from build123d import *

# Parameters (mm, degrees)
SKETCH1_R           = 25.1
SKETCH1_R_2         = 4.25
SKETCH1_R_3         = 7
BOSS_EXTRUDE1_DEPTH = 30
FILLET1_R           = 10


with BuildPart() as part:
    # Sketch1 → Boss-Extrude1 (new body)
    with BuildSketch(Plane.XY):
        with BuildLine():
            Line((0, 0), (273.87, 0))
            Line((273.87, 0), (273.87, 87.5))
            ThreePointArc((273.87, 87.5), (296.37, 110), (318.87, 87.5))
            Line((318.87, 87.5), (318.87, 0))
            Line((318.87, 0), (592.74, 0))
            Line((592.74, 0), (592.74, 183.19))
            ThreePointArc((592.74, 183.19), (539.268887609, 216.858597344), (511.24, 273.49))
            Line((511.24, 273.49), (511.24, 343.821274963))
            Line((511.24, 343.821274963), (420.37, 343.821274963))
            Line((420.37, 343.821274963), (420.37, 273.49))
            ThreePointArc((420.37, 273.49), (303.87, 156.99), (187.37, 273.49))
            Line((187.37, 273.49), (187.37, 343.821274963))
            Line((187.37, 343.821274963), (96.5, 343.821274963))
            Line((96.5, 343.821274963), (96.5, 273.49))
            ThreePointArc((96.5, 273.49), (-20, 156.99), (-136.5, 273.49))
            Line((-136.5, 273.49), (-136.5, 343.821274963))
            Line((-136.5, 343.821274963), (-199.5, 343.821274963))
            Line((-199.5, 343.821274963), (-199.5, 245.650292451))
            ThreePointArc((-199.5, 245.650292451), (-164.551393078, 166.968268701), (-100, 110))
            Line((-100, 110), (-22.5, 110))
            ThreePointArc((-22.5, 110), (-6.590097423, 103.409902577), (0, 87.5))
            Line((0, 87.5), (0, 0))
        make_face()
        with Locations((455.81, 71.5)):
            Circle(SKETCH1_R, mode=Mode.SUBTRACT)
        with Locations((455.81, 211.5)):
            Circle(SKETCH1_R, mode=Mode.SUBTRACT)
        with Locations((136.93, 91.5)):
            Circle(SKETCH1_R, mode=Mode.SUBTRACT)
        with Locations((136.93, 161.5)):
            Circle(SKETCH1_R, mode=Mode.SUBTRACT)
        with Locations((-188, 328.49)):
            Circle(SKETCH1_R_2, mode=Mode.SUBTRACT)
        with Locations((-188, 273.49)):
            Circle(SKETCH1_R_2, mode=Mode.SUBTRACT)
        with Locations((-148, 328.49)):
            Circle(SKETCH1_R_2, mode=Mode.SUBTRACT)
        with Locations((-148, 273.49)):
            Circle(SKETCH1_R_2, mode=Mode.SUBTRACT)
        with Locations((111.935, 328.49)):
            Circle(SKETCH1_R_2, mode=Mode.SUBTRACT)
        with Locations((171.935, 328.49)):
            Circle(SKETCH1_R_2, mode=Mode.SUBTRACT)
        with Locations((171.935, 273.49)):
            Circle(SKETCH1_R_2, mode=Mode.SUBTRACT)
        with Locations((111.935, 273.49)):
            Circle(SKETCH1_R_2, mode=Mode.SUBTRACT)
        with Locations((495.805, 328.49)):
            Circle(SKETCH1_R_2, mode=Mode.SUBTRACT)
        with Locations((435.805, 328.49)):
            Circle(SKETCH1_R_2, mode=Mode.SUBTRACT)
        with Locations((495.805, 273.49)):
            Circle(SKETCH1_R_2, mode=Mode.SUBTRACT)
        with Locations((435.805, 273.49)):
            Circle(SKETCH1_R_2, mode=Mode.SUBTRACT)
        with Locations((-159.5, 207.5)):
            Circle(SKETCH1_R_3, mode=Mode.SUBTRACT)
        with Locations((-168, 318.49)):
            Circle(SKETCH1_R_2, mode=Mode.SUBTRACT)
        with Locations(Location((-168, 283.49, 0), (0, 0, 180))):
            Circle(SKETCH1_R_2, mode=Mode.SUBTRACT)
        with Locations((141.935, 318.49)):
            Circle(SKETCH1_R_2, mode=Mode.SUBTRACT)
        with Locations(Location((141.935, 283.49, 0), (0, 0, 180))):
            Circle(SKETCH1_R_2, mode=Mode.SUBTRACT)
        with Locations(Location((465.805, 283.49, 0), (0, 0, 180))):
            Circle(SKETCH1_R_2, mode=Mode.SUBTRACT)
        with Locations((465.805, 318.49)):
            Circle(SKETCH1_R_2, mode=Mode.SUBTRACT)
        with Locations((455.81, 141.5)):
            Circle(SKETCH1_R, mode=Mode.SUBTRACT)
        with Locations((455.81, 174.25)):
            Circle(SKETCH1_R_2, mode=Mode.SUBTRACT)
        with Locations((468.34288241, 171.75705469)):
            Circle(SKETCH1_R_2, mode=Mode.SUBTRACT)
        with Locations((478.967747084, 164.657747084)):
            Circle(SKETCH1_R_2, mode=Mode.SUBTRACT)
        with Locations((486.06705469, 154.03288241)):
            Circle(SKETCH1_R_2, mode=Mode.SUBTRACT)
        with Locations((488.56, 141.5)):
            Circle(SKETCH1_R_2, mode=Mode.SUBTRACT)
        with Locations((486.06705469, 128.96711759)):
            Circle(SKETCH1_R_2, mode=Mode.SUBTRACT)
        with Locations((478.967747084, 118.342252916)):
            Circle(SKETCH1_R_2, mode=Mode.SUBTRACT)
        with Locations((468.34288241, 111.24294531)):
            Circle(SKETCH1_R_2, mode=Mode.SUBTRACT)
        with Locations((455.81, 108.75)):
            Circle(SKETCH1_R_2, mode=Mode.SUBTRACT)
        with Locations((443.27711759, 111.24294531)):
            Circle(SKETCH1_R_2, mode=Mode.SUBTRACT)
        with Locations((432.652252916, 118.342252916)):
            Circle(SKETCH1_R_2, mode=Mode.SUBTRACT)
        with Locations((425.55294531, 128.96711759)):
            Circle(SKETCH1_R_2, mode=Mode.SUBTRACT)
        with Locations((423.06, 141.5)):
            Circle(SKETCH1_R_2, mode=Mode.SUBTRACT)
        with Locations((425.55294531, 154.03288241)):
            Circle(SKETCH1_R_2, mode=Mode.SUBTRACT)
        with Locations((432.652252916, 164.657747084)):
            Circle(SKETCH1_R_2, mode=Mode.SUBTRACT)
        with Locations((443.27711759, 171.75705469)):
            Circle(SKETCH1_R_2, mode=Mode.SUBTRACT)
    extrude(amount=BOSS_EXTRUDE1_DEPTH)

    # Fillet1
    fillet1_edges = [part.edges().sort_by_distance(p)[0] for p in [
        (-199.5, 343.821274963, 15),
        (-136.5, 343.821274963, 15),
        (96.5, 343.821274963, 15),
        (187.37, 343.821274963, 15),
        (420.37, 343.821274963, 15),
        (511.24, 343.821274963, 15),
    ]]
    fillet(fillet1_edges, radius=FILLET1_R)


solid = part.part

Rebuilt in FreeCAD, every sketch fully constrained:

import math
import FreeCAD as App
import Part
import Sketcher

V = App.Vector
Q = App.Units.Quantity


def edges_at(feature, points):
    """Names of the edges that pass closest to the given points."""
    edges = feature.Shape.Edges
    near = lambda p: min(range(len(edges)), key=lambda i: edges[i].distToShape(Part.Vertex(*p))[0])
    return sorted({f"Edge{near(p) + 1}" for p in points})

doc = App.newDocument("Part")
params = doc.addObject("Spreadsheet::Sheet", "Params")
for row, (alias, value) in enumerate([
    ("sketch1_diameter", "14 mm"),
    ("sketch1_diameter2", "50.2 mm"),
    ("sketch1_diameter3", "8.5 mm"),
    ("sketch1_radius", "22.5 mm"),
    ("sketch1_radius2", "116.5 mm"),
    ("pad1_length", "30 mm"),
    ("fillet_radius", "10 mm"),
], start=1):
    params.set(f"A{row}", alias)
    params.set(f"B{row}", "=" + value)
    params.setAlias(f"B{row}", alias)

body = doc.addObject("PartDesign::Body", "Body")

sketch1 = doc.addObject("Sketcher::SketchObject", "Sketch")
body.addObject(sketch1)
sketch1.AttachmentSupport = (doc.XY_Plane, [""])
sketch1.MapMode = "FlatFace"
sketch1.addGeometry([
    Part.LineSegment(V(0, 0, 0), V(273.9, 0, 0)),
    Part.LineSegment(V(273.9, 0, 0), V(273.9, 87.5, 0)),
    Part.ArcOfCircle(Part.Circle(V(296.4, 87.5, 0), V(0, 0, 1), 22.5), math.radians(0), math.radians(180)),
    Part.LineSegment(V(318.9, 87.5, 0), V(318.9, 0, 0)),
    Part.LineSegment(V(318.9, 0, 0), V(592.7, 0, 0)),
    Part.LineSegment(V(592.7, 0, 0), V(592.7, 183.2, 0)),
    Part.ArcOfCircle(Part.Circle(V(625.8, 294.9, 0), V(0, 0, 1), 116.5), math.radians(-169), math.radians(-106)),
    Part.LineSegment(V(511.2, 273.5, 0), V(511.2, 343.8, 0)),
    Part.LineSegment(V(511.2, 343.8, 0), V(420.4, 343.8, 0)),
    Part.LineSegment(V(420.4, 343.8, 0), V(420.4, 273.5, 0)),
    Part.ArcOfCircle(Part.Circle(V(303.9, 273.5, 0), V(0, 0, 1), 116.5), math.radians(180), math.radians(360)),
    Part.LineSegment(V(187.4, 273.5, 0), V(187.4, 343.8, 0)),
    Part.LineSegment(V(187.4, 343.8, 0), V(96.5, 343.8, 0)),
    Part.LineSegment(V(96.5, 343.8, 0), V(96.5, 273.5, 0)),
    Part.ArcOfCircle(Part.Circle(V(-20, 273.5, 0), V(0, 0, 1), 116.5), math.radians(180), math.radians(360)),
    Part.LineSegment(V(-136.5, 273.5, 0), V(-136.5, 343.8, 0)),
    Part.LineSegment(V(-136.5, 343.8, 0), V(-199.5, 343.8, 0)),
    Part.LineSegment(V(-199.5, 343.8, 0), V(-199.5, 245.7, 0)),
    Part.ArcOfCircle(Part.Circle(V(-1.8, 286.4, 0), V(0, 0, 1), 201.9), math.radians(-168), math.radians(-119)),
    Part.LineSegment(V(-100, 110, 0), V(-22.5, 110, 0)),
    Part.ArcOfCircle(Part.Circle(V(-22.5, 87.5, 0), V(0, 0, 1), 22.5), math.radians(0), math.radians(90)),
    Part.LineSegment(V(0, 87.5, 0), V(0, 0, 0)),
    Part.Circle(V(136.9, 91.5, 0), V(0, 0, 1), 25.1),
    Part.Circle(V(136.9, 161.5, 0), V(0, 0, 1), 25.1),
    Part.Circle(V(455.8, 71.5, 0), V(0, 0, 1), 25.1),
    Part.Circle(V(455.8, 108.8, 0), V(0, 0, 1), 4.2),
    Part.Circle(V(443.3, 111.2, 0), V(0, 0, 1), 4.2),
    Part.Circle(V(468.3, 111.2, 0), V(0, 0, 1), 4.2),
    Part.Circle(V(432.7, 118.3, 0), V(0, 0, 1), 4.2),
    Part.Circle(V(425.6, 129, 0), V(0, 0, 1), 4.2),
    Part.Circle(V(479, 118.3, 0), V(0, 0, 1), 4.2),
    Part.Circle(V(486.1, 129, 0), V(0, 0, 1), 4.2),
    Part.Circle(V(423.1, 141.5, 0), V(0, 0, 1), 4.2),
    Part.Circle(V(455.8, 141.5, 0), V(0, 0, 1), 25.1),
    Part.Circle(V(488.6, 141.5, 0), V(0, 0, 1), 4.2),
    Part.Circle(V(425.6, 154, 0), V(0, 0, 1), 4.2),
    Part.Circle(V(432.7, 164.7, 0), V(0, 0, 1), 4.2),
    Part.Circle(V(486.1, 154, 0), V(0, 0, 1), 4.2),
    Part.Circle(V(479, 164.7, 0), V(0, 0, 1), 4.2),
    Part.Circle(V(443.3, 171.8, 0), V(0, 0, 1), 4.2),
    Part.Circle(V(455.8, 174.2, 0), V(0, 0, 1), 4.2),
    Part.Circle(V(468.3, 171.8, 0), V(0, 0, 1), 4.2),
    Part.Circle(V(-159.5, 207.5, 0), V(0, 0, 1), 7),
    Part.Circle(V(-188, 273.5, 0), V(0, 0, 1), 4.2),
    Part.Circle(V(-148, 273.5, 0), V(0, 0, 1), 4.2),
    Part.Circle(V(-168, 283.5, 0), V(0, 0, 1), 4.2),
    Part.Circle(V(-168, 318.5, 0), V(0, 0, 1), 4.2),
    Part.Circle(V(-188, 328.5, 0), V(0, 0, 1), 4.2),
    Part.Circle(V(-148, 328.5, 0), V(0, 0, 1), 4.2),
    Part.Circle(V(111.9, 273.5, 0), V(0, 0, 1), 4.2),
    Part.Circle(V(141.9, 283.5, 0), V(0, 0, 1), 4.2),
    Part.Circle(V(141.9, 318.5, 0), V(0, 0, 1), 4.2),
    Part.Circle(V(111.9, 328.5, 0), V(0, 0, 1), 4.2),
    Part.Circle(V(455.8, 211.5, 0), V(0, 0, 1), 25.1),
    Part.Circle(V(171.9, 273.5, 0), V(0, 0, 1), 4.2),
    Part.Circle(V(171.9, 328.5, 0), V(0, 0, 1), 4.2),
    Part.Circle(V(435.8, 273.5, 0), V(0, 0, 1), 4.2),
    Part.Circle(V(495.8, 273.5, 0), V(0, 0, 1), 4.2),
    Part.Circle(V(465.8, 283.5, 0), V(0, 0, 1), 4.2),
    Part.Circle(V(435.8, 328.5, 0), V(0, 0, 1), 4.2),
    Part.Circle(V(465.8, 318.5, 0), V(0, 0, 1), 4.2),
    Part.Circle(V(495.8, 328.5, 0), V(0, 0, 1), 4.2),
], False)
sketch1.addConstraint([
    Sketcher.Constraint("Coincident", 0, 2, 1, 1),
    Sketcher.Constraint("Tangent", 1, 2, 2, 2),
    Sketcher.Constraint("Tangent", 2, 1, 3, 1),
    Sketcher.Constraint("Coincident", 3, 2, 4, 1),
    Sketcher.Constraint("Coincident", 4, 2, 5, 1),
    Sketcher.Constraint("Coincident", 5, 2, 6, 2),
    Sketcher.Constraint("Coincident", 6, 1, 7, 1),
    Sketcher.Constraint("Coincident", 7, 2, 8, 1),
    Sketcher.Constraint("Coincident", 8, 2, 9, 1),
    Sketcher.Constraint("Tangent", 9, 2, 10, 2),
    Sketcher.Constraint("Tangent", 10, 1, 11, 1),
    Sketcher.Constraint("Coincident", 11, 2, 12, 1),
    Sketcher.Constraint("Coincident", 12, 2, 13, 1),
    Sketcher.Constraint("Tangent", 13, 2, 14, 2),
    Sketcher.Constraint("Tangent", 14, 1, 15, 1),
    Sketcher.Constraint("Coincident", 15, 2, 16, 1),
    Sketcher.Constraint("Coincident", 16, 2, 17, 1),
    Sketcher.Constraint("Coincident", 17, 2, 18, 1),
    Sketcher.Constraint("Coincident", 18, 2, 19, 1),
    Sketcher.Constraint("Tangent", 19, 2, 20, 2),
    Sketcher.Constraint("Tangent", 20, 1, 21, 1),
    Sketcher.Constraint("Coincident", 21, 2, 0, 1),
    Sketcher.Constraint("Horizontal", 0),
    Sketcher.Constraint("Vertical", 1),
    Sketcher.Constraint("Vertical", 3),
    Sketcher.Constraint("Horizontal", 4),
    Sketcher.Constraint("Vertical", 5),
    Sketcher.Constraint("Vertical", 7),
    Sketcher.Constraint("Horizontal", 8),
    Sketcher.Constraint("Vertical", 9),
    Sketcher.Constraint("Vertical", 11),
    Sketcher.Constraint("Horizontal", 12),
    Sketcher.Constraint("Vertical", 13),
    Sketcher.Constraint("Vertical", 15),
    Sketcher.Constraint("Horizontal", 16),
    Sketcher.Constraint("Vertical", 17),
    Sketcher.Constraint("Horizontal", 19),
    Sketcher.Constraint("Vertical", 21),
    Sketcher.Constraint("Coincident", 21, 2, -1, 1),
    Sketcher.Constraint("Equal", 6, 10),
    Sketcher.Constraint("Equal", 10, 14),
    Sketcher.Constraint("Equal", 2, 20),
    Sketcher.Constraint("Equal", 22, 23),
    Sketcher.Constraint("Equal", 23, 24),
    Sketcher.Constraint("Equal", 25, 26),
    Sketcher.Constraint("Equal", 26, 27),
    Sketcher.Constraint("Equal", 27, 28),
    Sketcher.Constraint("Equal", 28, 29),
    Sketcher.Constraint("Equal", 29, 30),
    Sketcher.Constraint("Equal", 30, 31),
    Sketcher.Constraint("Equal", 31, 32),
    Sketcher.Constraint("Equal", 24, 33),
    Sketcher.Constraint("Equal", 32, 34),
    Sketcher.Constraint("Equal", 34, 35),
    Sketcher.Constraint("Equal", 35, 36),
    Sketcher.Constraint("Equal", 36, 37),
    Sketcher.Constraint("Equal", 37, 38),
    Sketcher.Constraint("Equal", 38, 39),
    Sketcher.Constraint("Equal", 39, 40),
    Sketcher.Constraint("Equal", 40, 41),
    Sketcher.Constraint("Equal", 41, 43),
    Sketcher.Constraint("Equal", 43, 44),
    Sketcher.Constraint("Equal", 44, 45),
    Sketcher.Constraint("Equal", 45, 46),
    Sketcher.Constraint("Equal", 46, 47),
    Sketcher.Constraint("Equal", 47, 48),
    Sketcher.Constraint("Equal", 48, 49),
    Sketcher.Constraint("Equal", 49, 50),
    Sketcher.Constraint("Equal", 50, 51),
    Sketcher.Constraint("Equal", 51, 52),
    Sketcher.Constraint("Equal", 33, 53),
    Sketcher.Constraint("Equal", 52, 54),
    Sketcher.Constraint("Equal", 54, 55),
    Sketcher.Constraint("Equal", 55, 56),
    Sketcher.Constraint("Equal", 56, 57),
    Sketcher.Constraint("Equal", 57, 58),
    Sketcher.Constraint("Equal", 58, 59),
    Sketcher.Constraint("Equal", 59, 60),
    Sketcher.Constraint("Equal", 60, 61),
    Sketcher.Constraint("PointOnObject", 3, 2, -1),
    Sketcher.Constraint("Horizontal", 10, 3, 14, 3),
    Sketcher.Constraint("Horizontal", 2, 3, 20, 3),
    Sketcher.Constraint("Horizontal", 26, 3, 27, 3),
    Sketcher.Constraint("Horizontal", 28, 3, 30, 3),
    Sketcher.Constraint("Horizontal", 29, 3, 31, 3),
    Sketcher.Constraint("Horizontal", 32, 3, 33, 3),
    Sketcher.Constraint("Horizontal", 33, 3, 34, 3),
    Sketcher.Constraint("Horizontal", 35, 3, 37, 3),
    Sketcher.Constraint("Horizontal", 36, 3, 38, 3),
    Sketcher.Constraint("Horizontal", 39, 3, 41, 3),
    Sketcher.Constraint("Horizontal", 14, 3, 43, 3),
    Sketcher.Constraint("Horizontal", 43, 3, 44, 3),
    Sketcher.Constraint("Horizontal", 47, 3, 48, 3),
    Sketcher.Constraint("Horizontal", 44, 3, 49, 3),
    Sketcher.Constraint("Horizontal", 45, 3, 50, 3),
    Sketcher.Constraint("Horizontal", 46, 3, 51, 3),
    Sketcher.Constraint("Horizontal", 48, 3, 52, 3),
    Sketcher.Constraint("Horizontal", 49, 3, 54, 3),
    Sketcher.Constraint("Horizontal", 52, 3, 55, 3),
    Sketcher.Constraint("Horizontal", 54, 3, 56, 3),
    Sketcher.Constraint("Horizontal", 56, 3, 57, 3),
    Sketcher.Constraint("Horizontal", 50, 3, 58, 3),
    Sketcher.Constraint("Horizontal", 55, 3, 59, 3),
    Sketcher.Constraint("Horizontal", 51, 3, 60, 3),
    Sketcher.Constraint("Horizontal", 59, 3, 61, 3),
    Sketcher.Constraint("Horizontal", 57, 3, 6, 1),
    Sketcher.Constraint("Horizontal", 8, 2, 11, 2),
    Sketcher.Constraint("Horizontal", 12, 2, 15, 2),
    Sketcher.Constraint("Vertical", 22, 3, 23, 3),
    Sketcher.Constraint("Vertical", 24, 3, 25, 3),
    Sketcher.Constraint("Vertical", 25, 3, 33, 3),
    Sketcher.Constraint("Vertical", 29, 3, 35, 3),
    Sketcher.Constraint("Vertical", 28, 3, 36, 3),
    Sketcher.Constraint("Vertical", 31, 3, 37, 3),
    Sketcher.Constraint("Vertical", 30, 3, 38, 3),
    Sketcher.Constraint("Vertical", 26, 3, 39, 3),
    Sketcher.Constraint("Vertical", 33, 3, 40, 3),
    Sketcher.Constraint("Vertical", 27, 3, 41, 3),
    Sketcher.Constraint("Vertical", 45, 3, 46, 3),
    Sketcher.Constraint("Vertical", 43, 3, 47, 3),
    Sketcher.Constraint("Vertical", 44, 3, 48, 3),
    Sketcher.Constraint("Vertical", 50, 3, 51, 3),
    Sketcher.Constraint("Vertical", 49, 3, 52, 3),
    Sketcher.Constraint("Vertical", 40, 3, 53, 3),
    Sketcher.Constraint("Vertical", 54, 3, 55, 3),
    Sketcher.Constraint("Vertical", 56, 3, 59, 3),
    Sketcher.Constraint("Vertical", 58, 3, 60, 3),
    Sketcher.Constraint("Vertical", 57, 3, 61, 3),
    Sketcher.Constraint("Equal", 0, 4),
    Sketcher.Constraint("Equal", 8, 12),
    Sketcher.Constraint("Diameter", 42, Q("14 mm")),
    Sketcher.Constraint("Diameter", 22, Q("50.2 mm")),
    Sketcher.Constraint("Diameter", 25, Q("8.5 mm")),
    Sketcher.Constraint("Radius", 2, Q("22.5 mm")),
    Sketcher.Constraint("Radius", 6, Q("116.5 mm")),
    Sketcher.Constraint("Radius", 18, Q("201.9 mm")),
    Sketcher.Constraint("DistanceX", 16, 2, 16, 1, Q("63 mm")),
    Sketcher.Constraint("DistanceX", 19, 1, 19, 2, Q("77.5 mm")),
    Sketcher.Constraint("DistanceY", 1, 1, 1, 2, Q("87.5 mm")),
    Sketcher.Constraint("DistanceX", 14, 3, -1, 1, Q("20 mm")),
    Sketcher.Constraint("DistanceX", 43, 3, -1, 1, Q("188 mm")),
    Sketcher.Constraint("DistanceX", 44, 3, -1, 1, Q("148 mm")),
    Sketcher.Constraint("DistanceX", 45, 3, -1, 1, Q("168 mm")),
    Sketcher.Constraint("DistanceX", 0, 1, 0, 2, Q("273.87 mm")),
    Sketcher.Constraint("DistanceX", 8, 2, 8, 1, Q("90.87 mm")),
    Sketcher.Constraint("DistanceY", 5, 1, 5, 2, Q("183.19 mm")),
    Sketcher.Constraint("DistanceY", -1, 1, 22, 3, Q("91.5 mm")),
    Sketcher.Constraint("DistanceY", -1, 1, 23, 3, Q("161.5 mm")),
    Sketcher.Constraint("DistanceY", -1, 1, 24, 3, Q("71.5 mm")),
    Sketcher.Constraint("DistanceY", -1, 1, 32, 3, Q("141.5 mm")),
    Sketcher.Constraint("DistanceX", 42, 3, -1, 1, Q("159.5 mm")),
    Sketcher.Constraint("DistanceY", -1, 1, 42, 3, Q("207.5 mm")),
    Sketcher.Constraint("DistanceY", -1, 1, 53, 3, Q("211.5 mm")),
    Sketcher.Constraint("DistanceY", -1, 1, 10, 3, Q("273.49 mm")),
    Sketcher.Constraint("DistanceX", -1, 1, 22, 3, Q("136.93 mm")),
    Sketcher.Constraint("DistanceX", -1, 1, 24, 3, Q("455.81 mm")),
    Sketcher.Constraint("DistanceY", -1, 1, 25, 3, Q("108.75 mm")),
    Sketcher.Constraint("DistanceX", -1, 1, 32, 3, Q("423.06 mm")),
    Sketcher.Constraint("DistanceX", -1, 1, 34, 3, Q("488.56 mm")),
    Sketcher.Constraint("DistanceY", -1, 1, 40, 3, Q("174.25 mm")),
    Sketcher.Constraint("DistanceY", -1, 1, 45, 3, Q("283.49 mm")),
    Sketcher.Constraint("DistanceY", -1, 1, 46, 3, Q("318.49 mm")),
    Sketcher.Constraint("DistanceY", -1, 1, 47, 3, Q("328.49 mm")),
    Sketcher.Constraint("DistanceX", -1, 1, 49, 3, Q("111.935 mm")),
    Sketcher.Constraint("DistanceX", -1, 1, 50, 3, Q("141.935 mm")),
    Sketcher.Constraint("DistanceX", -1, 1, 54, 3, Q("171.935 mm")),
    Sketcher.Constraint("DistanceX", -1, 1, 56, 3, Q("435.805 mm")),
    Sketcher.Constraint("DistanceX", -1, 1, 57, 3, Q("495.805 mm")),
    Sketcher.Constraint("DistanceX", -1, 1, 58, 3, Q("465.805 mm")),
    Sketcher.Constraint("DistanceY", 7, 1, 7, 2, Q("70.331275 mm")),
    Sketcher.Constraint("DistanceY", 17, 2, 17, 1, Q("98.170983 mm")),
    Sketcher.Constraint("DistanceX", -1, 1, 26, 3, Q("443.277118 mm")),
    Sketcher.Constraint("DistanceY", -1, 1, 26, 3, Q("111.242945 mm")),
    Sketcher.Constraint("DistanceX", -1, 1, 27, 3, Q("468.342882 mm")),
    Sketcher.Constraint("DistanceX", -1, 1, 28, 3, Q("432.652253 mm")),
    Sketcher.Constraint("DistanceY", -1, 1, 28, 3, Q("118.342253 mm")),
    Sketcher.Constraint("DistanceX", -1, 1, 29, 3, Q("425.552945 mm")),
    Sketcher.Constraint("DistanceY", -1, 1, 29, 3, Q("128.967118 mm")),
    Sketcher.Constraint("DistanceX", -1, 1, 30, 3, Q("478.967747 mm")),
    Sketcher.Constraint("DistanceX", -1, 1, 31, 3, Q("486.067055 mm")),
    Sketcher.Constraint("DistanceY", -1, 1, 35, 3, Q("154.032882 mm")),
    Sketcher.Constraint("DistanceY", -1, 1, 36, 3, Q("164.657747 mm")),
    Sketcher.Constraint("DistanceY", -1, 1, 39, 3, Q("171.757055 mm")),
])
sketch1.setExpression("Constraints[130]", "Params.sketch1_diameter")
sketch1.setExpression("Constraints[131]", "Params.sketch1_diameter2")
sketch1.setExpression("Constraints[132]", "Params.sketch1_diameter3")
sketch1.setExpression("Constraints[133]", "Params.sketch1_radius")
sketch1.setExpression("Constraints[134]", "Params.sketch1_radius2")
pad1 = doc.addObject("PartDesign::Pad", "Pad")
body.addObject(pad1)
pad1.Profile = sketch1
pad1.setExpression("Length", "Params.pad1_length")
doc.recompute()

fillet = doc.addObject("PartDesign::Fillet", "Fillet")
body.addObject(fillet)
fillet.Base = (pad1, edges_at(pad1, [
    (-199.5, 343.821, 15),
    (-136.5, 343.821, 15),
    (96.5, 343.821, 15),
    (187.37, 343.821, 15),
    (420.37, 343.821, 15),
    (511.24, 343.821, 15),
]))
fillet.setExpression("Radius", "Params.fillet_radius")

doc.recompute()
